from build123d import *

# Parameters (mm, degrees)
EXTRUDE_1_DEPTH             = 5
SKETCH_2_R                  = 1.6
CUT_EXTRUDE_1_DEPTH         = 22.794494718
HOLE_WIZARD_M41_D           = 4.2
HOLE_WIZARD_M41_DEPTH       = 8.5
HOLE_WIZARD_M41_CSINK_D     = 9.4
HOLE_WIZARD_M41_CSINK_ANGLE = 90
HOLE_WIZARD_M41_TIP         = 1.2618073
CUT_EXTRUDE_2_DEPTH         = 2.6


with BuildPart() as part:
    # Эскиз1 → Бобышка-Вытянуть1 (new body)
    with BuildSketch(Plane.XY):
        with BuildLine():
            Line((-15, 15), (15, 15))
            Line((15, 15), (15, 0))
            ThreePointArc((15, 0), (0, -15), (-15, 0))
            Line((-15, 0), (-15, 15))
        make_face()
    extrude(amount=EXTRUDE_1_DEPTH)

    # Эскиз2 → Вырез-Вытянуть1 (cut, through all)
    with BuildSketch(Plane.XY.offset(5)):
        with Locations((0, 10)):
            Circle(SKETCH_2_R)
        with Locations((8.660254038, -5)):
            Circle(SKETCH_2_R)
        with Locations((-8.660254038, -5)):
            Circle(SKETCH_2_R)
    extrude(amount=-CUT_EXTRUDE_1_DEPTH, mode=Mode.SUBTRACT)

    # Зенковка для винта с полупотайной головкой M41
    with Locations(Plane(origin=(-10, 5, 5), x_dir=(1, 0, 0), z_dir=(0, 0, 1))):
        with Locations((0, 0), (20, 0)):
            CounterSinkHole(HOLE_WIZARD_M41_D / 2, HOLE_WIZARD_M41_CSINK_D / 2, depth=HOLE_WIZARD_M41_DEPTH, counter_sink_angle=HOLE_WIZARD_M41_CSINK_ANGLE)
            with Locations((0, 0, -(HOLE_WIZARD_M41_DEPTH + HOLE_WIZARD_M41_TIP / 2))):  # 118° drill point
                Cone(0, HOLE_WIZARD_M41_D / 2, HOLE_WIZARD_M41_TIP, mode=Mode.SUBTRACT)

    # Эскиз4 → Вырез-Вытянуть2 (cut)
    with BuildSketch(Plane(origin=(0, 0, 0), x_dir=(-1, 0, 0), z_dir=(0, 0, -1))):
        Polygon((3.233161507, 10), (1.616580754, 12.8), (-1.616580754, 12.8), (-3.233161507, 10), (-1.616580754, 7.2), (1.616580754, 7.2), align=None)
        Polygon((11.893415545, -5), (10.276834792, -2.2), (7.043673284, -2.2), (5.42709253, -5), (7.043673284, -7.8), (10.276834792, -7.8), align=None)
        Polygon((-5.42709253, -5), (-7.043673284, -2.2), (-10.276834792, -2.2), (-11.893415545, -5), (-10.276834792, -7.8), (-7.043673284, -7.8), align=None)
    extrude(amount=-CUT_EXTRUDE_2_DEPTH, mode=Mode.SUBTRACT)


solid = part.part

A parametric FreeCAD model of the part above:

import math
import FreeCAD as App
import Part
import Sketcher

V = App.Vector
Q = App.Units.Quantity


def add_polygon(sketch, points):
    """Adds a closed chain of lines whose ends are joined by coincident constraints."""
    first, n = sketch.GeometryCount, len(points)
    for a, b in zip(points, points[1:] + points[:1]):
        sketch.addGeometry(Part.LineSegment(App.Vector(*a, 0), App.Vector(*b, 0)), False)
    for i in range(n):
        sketch.addConstraint(Sketcher.Constraint("Coincident", first + i, 2, first + (i + 1) % n, 1))

doc = App.newDocument("Part")
params = doc.addObject("Spreadsheet::Sheet", "Params")
for row, (alias, value) in enumerate([
    ("sketch1_radius", "15 mm"),
    ("sketch1_height", "15 mm"),
    ("pad1_length", "5 mm"),
    ("sketch2_diameter", "3.2 mm"),
    ("sketch3_diameter", "4.2 mm"),
    ("hole_diameter", "4.2 mm"),
    ("hole_depth", "8.5 mm"),
    ("hole_csink_diameter", "9.4 mm"),
    ("pocket2_length", "2.6 mm"),
], start=1):
    params.set(f"A{row}", alias)
    params.set(f"B{row}", "=" + value)
    params.setAlias(f"B{row}", alias)

body = doc.addObject("PartDesign::Body", "Body")

# Sketch on XY plane
sketch1 = doc.addObject("Sketcher::SketchObject", "Sketch")
body.addObject(sketch1)
sketch1.AttachmentSupport = (doc.XY_Plane, [""])
sketch1.MapMode = "FlatFace"
sketch1.addGeometry(Part.LineSegment(V(15, 15, 0), V(-15, 15, 0)), False)
sketch1.addGeometry(Part.LineSegment(V(-15, 15, 0), V(-15, 0, 0)), False)
sketch1.addGeometry(Part.ArcOfCircle(Part.Circle(V(0, 0, 0), V(0, 0, 1), 15), math.radians(180), math.radians(360)), False)
sketch1.addGeometry(Part.LineSegment(V(15, 0, 0), V(15, 15, 0)), False)
sketch1.addConstraint(Sketcher.Constraint("Coincident", 0, 2, 1, 1))
sketch1.addConstraint(Sketcher.Constraint("Tangent", 1, 2, 2, 1))
sketch1.addConstraint(Sketcher.Constraint("Tangent", 2, 2, 3, 1))
sketch1.addConstraint(Sketcher.Constraint("Coincident", 3, 2, 0, 1))
sketch1.addConstraint(Sketcher.Constraint("Horizontal", 0))
sketch1.addConstraint(Sketcher.Constraint("Vertical", 1))
sketch1.addConstraint(Sketcher.Constraint("Vertical", 3))
sketch1.addConstraint(Sketcher.Constraint("Coincident", 2, 3, -1, 1))
sketch1.addConstraint(Sketcher.Constraint("Radius", 2, Q("15 mm")))
sketch1.addConstraint(Sketcher.Constraint("DistanceY", 1, 2, 1, 1, Q("15 mm")))
sketch1.setExpression("Constraints[8]", "Params.sketch1_radius")
sketch1.setExpression("Constraints[9]", "Params.sketch1_height")
pad1 = doc.addObject("PartDesign::Pad", "Pad")
body.addObject(pad1)
pad1.Profile = sketch1
pad1.setExpression("Length", "Params.pad1_length")

# Sketch on XY plane
sketch2 = doc.addObject("Sketcher::SketchObject", "Sketch001")
body.addObject(sketch2)
sketch2.AttachmentSupport = (doc.XY_Plane, [""])
sketch2.MapMode = "FlatFace"
sketch2.AttachmentOffset = App.Placement(V(0, 0, 5), App.Rotation())
sketch2.addGeometry(Part.Circle(V(0, 10, 0), V(0, 0, 1), 1.6), False)
sketch2.addGeometry(Part.Circle(V(8.7, -5, 0), V(0, 0, 1), 1.6), False)
sketch2.addGeometry(Part.Circle(V(-8.7, -5, 0), V(0, 0, 1), 1.6), False)
sketch2.addConstraint(Sketcher.Constraint("Equal", 0, 1))
sketch2.addConstraint(Sketcher.Constraint("Equal", 1, 2))
sketch2.addConstraint(Sketcher.Constraint("Symmetric", 1, 3, 2, 3, -2))
sketch2.addConstraint(Sketcher.Constraint("PointOnObject", 0, 3, -2))
sketch2.addConstraint(Sketcher.Constraint("Diameter", 0, Q("3.2 mm")))
sketch2.addConstraint(Sketcher.Constraint("DistanceY", -1, 1, 0, 3, Q("10 mm")))
sketch2.addConstraint(Sketcher.Constraint("DistanceY", 1, 3, -1, 1, Q("5 mm")))
sketch2.addConstraint(Sketcher.Constraint("DistanceX", 2, 3, 1, 3, Q("17.320508 mm")))
sketch2.setExpression("Constraints[4]", "Params.sketch2_diameter")
pocket1 = doc.addObject("PartDesign::Pocket", "Pocket")
body.addObject(pocket1)
pocket1.Profile = sketch2
pocket1.Type = "ThroughAll"

# Sketch on XY plane
sketch3 = doc.addObject("Sketcher::SketchObject", "Sketch002")
body.addObject(sketch3)
sketch3.AttachmentSupport = (doc.XY_Plane, [""])
sketch3.MapMode = "FlatFace"
sketch3.AttachmentOffset = App.Placement(V(0, 0, 5), App.Rotation())
sketch3.addGeometry(Part.Circle(V(-10, 5, 0), V(0, 0, 1), 2.1), False)
sketch3.addGeometry(Part.Circle(V(10, 5, 0), V(0, 0, 1), 2.1), False)
sketch3.addConstraint(Sketcher.Constraint("Equal", 0, 1))
sketch3.addConstraint(Sketcher.Constraint("Symmetric", 0, 3, 1, 3, -2))
sketch3.addConstraint(Sketcher.Constraint("Diameter", 0, Q("4.2 mm")))
sketch3.addConstraint(Sketcher.Constraint("DistanceX", 0, 3, -1, 1, Q("10 mm")))
sketch3.addConstraint(Sketcher.Constraint("DistanceY", -1, 1, 0, 3, Q("5 mm")))
sketch3.setExpression("Constraints[2]", "Params.sketch3_diameter")
doc.recompute()
hole = doc.addObject("PartDesign::Hole", "Hole")
body.addObject(hole)
hole.Profile = sketch3
hole.ThreadType = "None"
hole.setExpression("Diameter", "Params.hole_diameter")
hole.DepthType = "Dimension"
hole.setExpression("Depth", "Params.hole_depth")
hole.DrillPoint = "Angled"
hole.DrillPointAngle = 118
hole.HoleCutType = "Countersink"
hole.setExpression("HoleCutDiameter", "Params.hole_csink_diameter")
hole.HoleCutCountersinkAngle = 90

# Sketch on XY plane
sketch4 = doc.addObject("Sketcher::SketchObject", "Sketch003")
body.addObject(sketch4)
sketch4.AttachmentSupport = (doc.XY_Plane, [""])
sketch4.MapMode = "FlatFace"
add_polygon(sketch4, [(-3.2, 10), (-1.6, 12.8), (1.6, 12.8), (3.2, 10), (1.6, 7.2), (-1.6, 7.2)])  # lines 0-5
add_polygon(sketch4, [(-11.9, -5), (-10.3, -2.2), (-7, -2.2), (-5.4, -5), (-7, -7.8), (-10.3, -7.8)])  # lines 6-11
add_polygon(sketch4, [(5.4, -5), (7, -2.2), (10.3, -2.2), (11.9, -5), (10.3, -7.8), (7, -7.8)])  # lines 12-17
sketch4.addConstraint(Sketcher.Constraint("Horizontal", 1))
sketch4.addConstraint(Sketcher.Constraint("Horizontal", 4))
sketch4.addConstraint(Sketcher.Constraint("Horizontal", 7))
sketch4.addConstraint(Sketcher.Constraint("Horizontal", 10))
sketch4.addConstraint(Sketcher.Constraint("Horizontal", 13))
sketch4.addConstraint(Sketcher.Constraint("Horizontal", 16))
sketch4.addConstraint(Sketcher.Constraint("Symmetric", 2, 2, 5, 2, -2))
sketch4.addConstraint(Sketcher.Constraint("Symmetric", 7, 2, 12, 2, -2))
sketch4.addConstraint(Sketcher.Constraint("Symmetric", 11, 2, 14, 2, -2))
sketch4.addConstraint(Sketcher.Constraint("Symmetric", 10, 2, 15, 2, -2))
sketch4.addConstraint(Sketcher.Constraint("Symmetric", 8, 2, 17, 2, -2))
sketch4.addConstraint(Sketcher.Constraint("Parallel", 0, 3))
sketch4.addConstraint(Sketcher.Constraint("Parallel", 2, 5))
sketch4.addConstraint(Sketcher.Constraint("Parallel", 3, 6))
sketch4.addConstraint(Sketcher.Constraint("Parallel", 5, 8))
sketch4.addConstraint(Sketcher.Constraint("Parallel", 6, 9))
sketch4.addConstraint(Sketcher.Constraint("Parallel", 8, 11))
sketch4.addConstraint(Sketcher.Constraint("Parallel", 9, 12))
sketch4.addConstraint(Sketcher.Constraint("Parallel", 11, 14))
sketch4.addConstraint(Sketcher.Constraint("Parallel", 14, 17))
sketch4.addConstraint(Sketcher.Constraint("Horizontal", 8, 2, 11, 2))
sketch4.addConstraint(Sketcher.Constraint("Vertical", 1, 2, 3, 2))
sketch4.addConstraint(Sketcher.Constraint("Vertical", 7, 2, 9, 2))
sketch4.addConstraint(Sketcher.Constraint("Equal", 4, 7))
sketch4.addConstraint(Sketcher.Constraint("Equal", 5, 6))
sketch4.addConstraint(Sketcher.Constraint("Angle", 0, Q("60 deg")))
sketch4.addConstraint(Sketcher.Constraint("DistanceY", -1, 1, 2, 2, Q("10 mm")))
sketch4.addConstraint(Sketcher.Constraint("DistanceY", 8, 2, -1, 1, Q("5 mm")))
sketch4.addConstraint(Sketcher.Constraint("DistanceY", -1, 1, 0, 2, Q("12.8 mm")))
sketch4.addConstraint(Sketcher.Constraint("DistanceX", 1, 1, 1, 2, Q("3.233162 mm")))
sketch4.addConstraint(Sketcher.Constraint("DistanceX", 7, 2, 5, 2, Q("3.810512 mm")))
pocket2 = doc.addObject("PartDesign::Pocket", "Pocket001")
body.addObject(pocket2)
pocket2.Profile = sketch4
pocket2.setExpression("Length", "Params.pocket2_length")
pocket2.Reversed = True

doc.recompute()
